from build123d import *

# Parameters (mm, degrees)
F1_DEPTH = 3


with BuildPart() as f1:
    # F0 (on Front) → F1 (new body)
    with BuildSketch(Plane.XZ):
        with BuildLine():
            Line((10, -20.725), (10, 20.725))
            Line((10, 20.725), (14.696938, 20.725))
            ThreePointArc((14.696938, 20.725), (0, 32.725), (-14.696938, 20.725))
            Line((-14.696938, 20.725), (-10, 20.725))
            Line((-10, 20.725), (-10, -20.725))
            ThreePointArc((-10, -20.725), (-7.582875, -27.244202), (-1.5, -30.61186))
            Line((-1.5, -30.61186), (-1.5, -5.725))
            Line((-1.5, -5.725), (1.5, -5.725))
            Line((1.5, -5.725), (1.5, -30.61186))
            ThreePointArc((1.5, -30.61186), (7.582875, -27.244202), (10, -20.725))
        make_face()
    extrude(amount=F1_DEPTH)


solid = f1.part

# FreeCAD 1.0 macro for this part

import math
import FreeCAD as App
import Part
import Sketcher
Q = App.Units.Quantity

doc = App.newDocument("Part")
params = doc.addObject("Spreadsheet::Sheet", "Params")
for row, (alias, value) in enumerate([
    ("sketch1_radius", "14.999999 mm"),
    ("sketch1_radius2", "10.000002 mm"),
    ("sketch1_width", "3 mm"),
    ("sketch1_height", "41.45 mm"),
    ("pad1_length", "3 mm"),
], start=1):
    params.set(f"A{row}", alias)
    params.set(f"B{row}", "=" + value)
    params.setAlias(f"B{row}", alias)

body = doc.addObject("PartDesign::Body", "Body")

# Sketch on XZ plane
sketch1 = body.newObject("Sketcher::SketchObject", "Sketch")
sketch1.AttachmentSupport = (doc.getObject("XZ_Plane"), [""])
sketch1.MapMode = "FlatFace"
sketch1.addGeometry([
    Part.LineSegment(App.Vector(10, -20.7, 0), App.Vector(10, 20.7, 0)),  # 0
    Part.LineSegment(App.Vector(10, 20.7, 0), App.Vector(14.7, 20.7, 0)),  # 1
    Part.ArcOfCircle(Part.Circle(App.Vector(0, 17.7, 0), App.Vector(0, 0, 1), 15), math.radians(12), math.radians(168)),  # 2
    Part.LineSegment(App.Vector(-14.7, 20.7, 0), App.Vector(-10, 20.7, 0)),  # 3
    Part.LineSegment(App.Vector(-10, 20.7, 0), App.Vector(-10, -20.7, 0)),  # 4
    Part.ArcOfCircle(Part.Circle(App.Vector(0, -20.7, 0), App.Vector(0, 0, 1), 10), math.radians(-180), math.radians(-99)),  # 5
    Part.LineSegment(App.Vector(-1.5, -30.6, 0), App.Vector(-1.5, -5.7, 0)),  # 6
    Part.LineSegment(App.Vector(-1.5, -5.7, 0), App.Vector(1.5, -5.7, 0)),  # 7
    Part.LineSegment(App.Vector(1.5, -5.7, 0), App.Vector(1.5, -30.6, 0)),  # 8
    Part.ArcOfCircle(Part.Circle(App.Vector(0, -20.7, 0), App.Vector(0, 0, 1), 10), math.radians(-81), math.radians(0)),  # 9
], False)
sketch1.addConstraint([
    Sketcher.Constraint("Coincident", 0, 2, 1, 1),
    Sketcher.Constraint("Coincident", 1, 2, 2, 1),
    Sketcher.Constraint("Coincident", 2, 2, 3, 1),
    Sketcher.Constraint("Coincident", 3, 2, 4, 1),
    Sketcher.Constraint("Tangent", 4, 2, 5, 1),
    Sketcher.Constraint("Coincident", 5, 2, 6, 1),
    Sketcher.Constraint("Coincident", 6, 2, 7, 1),
    Sketcher.Constraint("Coincident", 7, 2, 8, 1),
    Sketcher.Constraint("Coincident", 8, 2, 9, 1),
    Sketcher.Constraint("Tangent", 9, 2, 0, 1),
    Sketcher.Constraint("Vertical", 0),
    Sketcher.Constraint("Horizontal", 1),
    Sketcher.Constraint("Horizontal", 3),
    Sketcher.Constraint("Vertical", 4),
    Sketcher.Constraint("Vertical", 6),
    Sketcher.Constraint("Horizontal", 7),
    Sketcher.Constraint("Vertical", 8),
    Sketcher.Constraint("Coincident", 9, 3, 5, 3),
    Sketcher.Constraint("Equal", 5, 9),
    Sketcher.Constraint("Symmetric", 0, 2, 4, 2, -1, 1),
    Sketcher.Constraint("Symmetric", 1, 2, 2, 2, -2),
    Sketcher.Constraint("Horizontal", 5, 2, 8, 2),
    Sketcher.Constraint("Radius", 2, Q("14.999999 mm")),
    Sketcher.Constraint("Radius", 5, Q("10.000002 mm")),
    Sketcher.Constraint("DistanceX", 7, 1, 7, 2, Q("3 mm")),
    Sketcher.Constraint("DistanceY", 2, 3, 0, 2, Q("2.999999 mm")),
    Sketcher.Constraint("DistanceY", 9, 3, 6, 2, Q("14.999998 mm")),
    Sketcher.Constraint("DistanceY", 0, 1, 0, 2, Q("41.45 mm")),
])
sketch1.setExpression("Constraints[22]", "Params.sketch1_radius")
sketch1.setExpression("Constraints[23]", "Params.sketch1_radius2")
sketch1.setExpression("Constraints[24]", "Params.sketch1_width")
sketch1.setExpression("Constraints[27]", "Params.sketch1_height")
pad1 = body.newObject("PartDesign::Pad", "Pad")
pad1.Profile = sketch1
pad1.setExpression("Length", "Params.pad1_length")

doc.recompute()
